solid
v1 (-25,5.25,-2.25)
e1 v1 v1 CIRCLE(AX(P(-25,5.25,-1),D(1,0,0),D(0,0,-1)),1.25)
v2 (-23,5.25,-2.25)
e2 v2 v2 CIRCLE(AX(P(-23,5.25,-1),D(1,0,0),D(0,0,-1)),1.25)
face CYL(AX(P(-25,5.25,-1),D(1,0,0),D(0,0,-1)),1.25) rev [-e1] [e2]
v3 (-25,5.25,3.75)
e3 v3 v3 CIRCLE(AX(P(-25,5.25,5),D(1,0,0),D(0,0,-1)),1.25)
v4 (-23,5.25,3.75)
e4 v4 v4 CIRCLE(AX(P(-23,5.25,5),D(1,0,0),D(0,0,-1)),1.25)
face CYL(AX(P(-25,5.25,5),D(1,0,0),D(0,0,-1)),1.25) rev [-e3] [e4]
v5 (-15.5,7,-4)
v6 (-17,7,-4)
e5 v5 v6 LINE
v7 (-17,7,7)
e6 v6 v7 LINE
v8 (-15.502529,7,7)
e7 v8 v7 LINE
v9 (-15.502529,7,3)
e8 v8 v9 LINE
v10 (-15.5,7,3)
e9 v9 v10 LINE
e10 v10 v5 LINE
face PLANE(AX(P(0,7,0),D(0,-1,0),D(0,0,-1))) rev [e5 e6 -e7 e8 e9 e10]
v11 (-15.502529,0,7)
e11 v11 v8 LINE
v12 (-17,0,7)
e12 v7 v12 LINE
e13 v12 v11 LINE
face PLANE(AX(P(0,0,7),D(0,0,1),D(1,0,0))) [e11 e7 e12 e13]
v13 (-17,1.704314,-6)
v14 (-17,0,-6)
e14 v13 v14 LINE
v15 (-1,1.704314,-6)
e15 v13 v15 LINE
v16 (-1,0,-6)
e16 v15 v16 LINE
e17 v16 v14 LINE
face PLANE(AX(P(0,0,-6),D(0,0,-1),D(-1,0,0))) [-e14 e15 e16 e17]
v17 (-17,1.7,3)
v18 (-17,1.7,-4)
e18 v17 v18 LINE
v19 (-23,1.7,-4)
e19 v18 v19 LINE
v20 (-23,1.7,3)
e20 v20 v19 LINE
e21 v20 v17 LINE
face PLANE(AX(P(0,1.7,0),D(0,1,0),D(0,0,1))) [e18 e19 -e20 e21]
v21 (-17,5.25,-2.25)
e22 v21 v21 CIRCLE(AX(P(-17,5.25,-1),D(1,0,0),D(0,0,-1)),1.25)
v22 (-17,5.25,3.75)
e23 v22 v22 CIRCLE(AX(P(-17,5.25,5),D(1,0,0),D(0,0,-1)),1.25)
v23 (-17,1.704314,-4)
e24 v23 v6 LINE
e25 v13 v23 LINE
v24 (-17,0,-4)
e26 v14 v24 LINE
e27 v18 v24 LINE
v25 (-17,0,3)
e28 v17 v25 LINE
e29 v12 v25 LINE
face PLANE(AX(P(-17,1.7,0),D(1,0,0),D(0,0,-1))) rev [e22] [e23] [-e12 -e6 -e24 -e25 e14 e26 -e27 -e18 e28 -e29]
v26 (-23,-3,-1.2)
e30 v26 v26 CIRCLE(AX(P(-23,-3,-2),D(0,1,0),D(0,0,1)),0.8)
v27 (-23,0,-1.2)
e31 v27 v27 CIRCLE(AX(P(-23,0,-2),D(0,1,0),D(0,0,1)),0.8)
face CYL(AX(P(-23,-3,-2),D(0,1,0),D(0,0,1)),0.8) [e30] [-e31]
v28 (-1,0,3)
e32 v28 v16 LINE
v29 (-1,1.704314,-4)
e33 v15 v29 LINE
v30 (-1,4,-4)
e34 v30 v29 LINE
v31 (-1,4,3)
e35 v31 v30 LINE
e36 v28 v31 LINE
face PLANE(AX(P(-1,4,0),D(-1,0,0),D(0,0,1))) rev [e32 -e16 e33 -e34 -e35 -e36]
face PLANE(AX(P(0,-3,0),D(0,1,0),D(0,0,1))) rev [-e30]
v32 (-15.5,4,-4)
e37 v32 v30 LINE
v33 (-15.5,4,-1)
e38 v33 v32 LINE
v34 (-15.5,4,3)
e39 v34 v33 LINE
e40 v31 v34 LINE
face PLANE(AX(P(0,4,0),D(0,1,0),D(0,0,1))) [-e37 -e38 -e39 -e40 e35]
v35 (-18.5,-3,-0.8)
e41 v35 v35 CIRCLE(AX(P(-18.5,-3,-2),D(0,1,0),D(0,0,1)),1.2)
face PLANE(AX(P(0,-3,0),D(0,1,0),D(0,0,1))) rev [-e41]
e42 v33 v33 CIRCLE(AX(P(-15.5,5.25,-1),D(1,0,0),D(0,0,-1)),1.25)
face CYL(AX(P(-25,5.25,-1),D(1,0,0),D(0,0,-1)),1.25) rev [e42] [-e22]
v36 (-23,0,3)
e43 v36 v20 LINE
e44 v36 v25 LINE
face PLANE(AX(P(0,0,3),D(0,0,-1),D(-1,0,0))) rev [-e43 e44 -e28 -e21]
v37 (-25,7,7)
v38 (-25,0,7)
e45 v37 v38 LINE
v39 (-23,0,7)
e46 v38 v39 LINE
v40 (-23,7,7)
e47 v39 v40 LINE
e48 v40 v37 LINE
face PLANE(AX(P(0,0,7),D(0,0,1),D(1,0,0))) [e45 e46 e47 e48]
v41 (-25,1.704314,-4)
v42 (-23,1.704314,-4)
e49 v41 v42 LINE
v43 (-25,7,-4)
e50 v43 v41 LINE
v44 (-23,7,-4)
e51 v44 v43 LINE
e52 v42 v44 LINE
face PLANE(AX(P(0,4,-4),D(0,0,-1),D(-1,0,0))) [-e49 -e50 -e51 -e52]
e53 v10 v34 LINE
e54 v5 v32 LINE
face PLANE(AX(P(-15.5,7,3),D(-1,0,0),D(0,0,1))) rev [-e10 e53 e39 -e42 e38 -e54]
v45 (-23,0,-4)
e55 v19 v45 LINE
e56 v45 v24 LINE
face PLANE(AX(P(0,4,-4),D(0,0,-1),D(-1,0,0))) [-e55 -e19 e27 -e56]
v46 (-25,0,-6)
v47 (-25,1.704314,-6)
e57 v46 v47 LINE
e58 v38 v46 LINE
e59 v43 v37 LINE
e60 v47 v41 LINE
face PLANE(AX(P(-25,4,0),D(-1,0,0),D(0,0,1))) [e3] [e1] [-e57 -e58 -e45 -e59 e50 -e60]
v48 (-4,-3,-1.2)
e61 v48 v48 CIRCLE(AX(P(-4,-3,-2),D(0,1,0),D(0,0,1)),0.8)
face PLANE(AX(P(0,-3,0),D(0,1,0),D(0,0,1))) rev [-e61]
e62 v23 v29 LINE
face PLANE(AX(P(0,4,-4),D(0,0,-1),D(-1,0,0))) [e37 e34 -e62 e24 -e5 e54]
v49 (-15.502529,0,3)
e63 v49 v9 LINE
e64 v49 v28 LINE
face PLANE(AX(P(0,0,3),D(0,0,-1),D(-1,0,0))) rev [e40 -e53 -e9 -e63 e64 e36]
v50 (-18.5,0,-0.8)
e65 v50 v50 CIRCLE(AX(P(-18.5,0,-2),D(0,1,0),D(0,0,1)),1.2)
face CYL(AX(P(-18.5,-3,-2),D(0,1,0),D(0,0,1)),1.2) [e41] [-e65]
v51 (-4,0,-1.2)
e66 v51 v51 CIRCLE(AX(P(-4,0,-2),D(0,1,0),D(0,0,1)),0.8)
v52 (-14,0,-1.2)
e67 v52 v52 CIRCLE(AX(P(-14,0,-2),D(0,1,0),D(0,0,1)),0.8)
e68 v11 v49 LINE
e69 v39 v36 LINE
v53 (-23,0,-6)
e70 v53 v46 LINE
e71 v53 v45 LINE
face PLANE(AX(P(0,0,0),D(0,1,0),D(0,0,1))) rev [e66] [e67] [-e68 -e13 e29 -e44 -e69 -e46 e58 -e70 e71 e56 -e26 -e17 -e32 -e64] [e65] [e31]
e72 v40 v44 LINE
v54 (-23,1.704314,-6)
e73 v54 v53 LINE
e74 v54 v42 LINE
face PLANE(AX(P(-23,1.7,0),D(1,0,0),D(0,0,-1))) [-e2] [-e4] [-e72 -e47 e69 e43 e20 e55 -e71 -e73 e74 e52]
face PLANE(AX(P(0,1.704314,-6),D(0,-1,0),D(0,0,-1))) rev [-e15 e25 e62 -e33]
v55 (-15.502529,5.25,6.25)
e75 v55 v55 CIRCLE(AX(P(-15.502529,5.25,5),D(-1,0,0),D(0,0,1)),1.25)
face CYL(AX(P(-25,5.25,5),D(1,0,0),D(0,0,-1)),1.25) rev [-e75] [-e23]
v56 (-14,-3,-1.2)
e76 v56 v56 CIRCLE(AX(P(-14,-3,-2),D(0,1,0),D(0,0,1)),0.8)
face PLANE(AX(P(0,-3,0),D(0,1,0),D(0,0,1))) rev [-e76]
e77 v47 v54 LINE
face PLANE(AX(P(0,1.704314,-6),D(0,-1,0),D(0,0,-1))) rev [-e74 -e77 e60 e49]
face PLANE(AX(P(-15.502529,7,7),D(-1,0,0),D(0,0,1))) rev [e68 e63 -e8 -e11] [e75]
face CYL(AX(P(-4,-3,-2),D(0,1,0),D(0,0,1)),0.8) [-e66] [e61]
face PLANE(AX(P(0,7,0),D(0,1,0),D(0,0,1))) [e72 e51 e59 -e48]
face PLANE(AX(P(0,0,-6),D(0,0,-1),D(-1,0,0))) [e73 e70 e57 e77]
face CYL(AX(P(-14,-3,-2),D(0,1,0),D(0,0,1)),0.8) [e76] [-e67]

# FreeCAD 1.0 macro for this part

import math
import FreeCAD as App
import Part
import Sketcher

V = App.Vector
Q = App.Units.Quantity

doc = App.newDocument("Part")
body = doc.addObject("PartDesign::Body", "Body")
body.AllowCompound = True

sketch1 = body.newObject("Sketcher::SketchObject", "Sketch")
sketch1.AttachmentSupport = (doc.getObject("XZ_Plane"), [""])
sketch1.MapMode = "FlatFace"
sketch1.addGeometry(Part.Circle(V(-18.5, -2, 0), V(0, 0, 1), 1.2), False)
sketch1.addGeometry(Part.ArcOfCircle(Part.Circle(V(-23, -2, 0), V(0, 0, 1), 0.8), math.radians(-90), math.radians(0)), False)
sketch1.addGeometry(Part.ArcOfCircle(Part.Circle(V(-23, -2, 0), V(0, 0, 1), 0.8), math.radians(180), math.radians(270)), False)
sketch1.addGeometry(Part.ArcOfCircle(Part.Circle(V(-23, -2, 0), V(0, 0, 1), 0.8), math.radians(90), math.radians(180)), False)
sketch1.addGeometry(Part.ArcOfCircle(Part.Circle(V(-23, -2, 0), V(0, 0, 1), 0.8), math.radians(0), math.radians(90)), False)
sketch1.addGeometry(Part.Circle(V(-14, -2, 0), V(0, 0, 1), 0.8), False)
sketch1.addGeometry(Part.Circle(V(-4, -2, 0), V(0, 0, 1), 0.8), False)
sketch1.addConstraint(Sketcher.Constraint("Tangent", 1, 1, 2, 2))
sketch1.addConstraint(Sketcher.Constraint("Tangent", 2, 1, 3, 2))
sketch1.addConstraint(Sketcher.Constraint("Tangent", 3, 1, 4, 2))
sketch1.addConstraint(Sketcher.Constraint("Tangent", 4, 1, 1, 2))
sketch1.addConstraint(Sketcher.Constraint("Equal", 1, 2))
sketch1.addConstraint(Sketcher.Constraint("Equal", 4, 5))
sketch1.addConstraint(Sketcher.Constraint("Equal", 5, 6))
sketch1.addConstraint(Sketcher.Constraint("Horizontal", 0, 3, 1, 3))
sketch1.addConstraint(Sketcher.Constraint("Horizontal", 4, 3, 5, 3))
sketch1.addConstraint(Sketcher.Constraint("Horizontal", 5, 3, 6, 3))
sketch1.addConstraint(Sketcher.Constraint("Horizontal", 6, 3, 2, 1))
sketch1.addConstraint(Sketcher.Constraint("Horizontal", 2, 1, 4, 1))
sketch1.addConstraint(Sketcher.Constraint("Vertical", 4, 3, 1, 1))
sketch1.addConstraint(Sketcher.Constraint("Vertical", 1, 1, 3, 1))
sketch1.addConstraint(Sketcher.Constraint("Diameter", 0, Q("2.4 mm")))
sketch1.addConstraint(Sketcher.Constraint("Diameter", 5, Q("1.6 mm")))
sketch1.addConstraint(Sketcher.Constraint("DistanceY", 0, 3, -1, 1, Q("2 mm")))
sketch1.addConstraint(Sketcher.Constraint("DistanceX", 1, 3, -1, 1, Q("23 mm")))
sketch1.addConstraint(Sketcher.Constraint("DistanceX", 5, 3, -1, 1, Q("14 mm")))
sketch1.addConstraint(Sketcher.Constraint("DistanceX", 6, 3, -1, 1, Q("4 mm")))
sketch1.addConstraint(Sketcher.Constraint("DistanceX", 0, 3, -1, 1, Q("18.5 mm")))
pad1 = body.newObject("PartDesign::Pad", "Pad")
pad1.Profile = sketch1
pad1.Length = 3

sketch2 = body.newObject("Sketcher::SketchObject", "Sketch001")
sketch2.AttachmentSupport = (doc.getObject("XZ_Plane"), [""])
sketch2.MapMode = "FlatFace"
sketch2.addGeometry(Part.LineSegment(V(-25, -4, 0), V(-25, 0, 0)), False)
sketch2.addGeometry(Part.LineSegment(V(-25, 0, 0), V(-1, 0, 0)), False)
sketch2.addGeometry(Part.LineSegment(V(-1, 0, 0), V(-1, -4, 0)), False)
sketch2.addGeometry(Part.LineSegment(V(-1, -4, 0), V(-25, -4, 0)), False)
sketch2.addConstraint(Sketcher.Constraint("Coincident", 0, 2, 1, 1))
sketch2.addConstraint(Sketcher.Constraint("Coincident", 1, 2, 2, 1))
sketch2.addConstraint(Sketcher.Constraint("Coincident", 2, 2, 3, 1))
sketch2.addConstraint(Sketcher.Constraint("Coincident", 3, 2, 0, 1))
sketch2.addConstraint(Sketcher.Constraint("Vertical", 0))
sketch2.addConstraint(Sketcher.Constraint("Horizontal", 1))
sketch2.addConstraint(Sketcher.Constraint("Vertical", 2))
sketch2.addConstraint(Sketcher.Constraint("Horizontal", 3))
sketch2.addConstraint(Sketcher.Constraint("PointOnObject", 0, 2, -1))
sketch2.addConstraint(Sketcher.Constraint("DistanceX", 1, 1, 1, 2, Q("24 mm")))
sketch2.addConstraint(Sketcher.Constraint("DistanceY", 0, 1, 0, 2, Q("4 mm")))
sketch2.addConstraint(Sketcher.Constraint("DistanceX", 0, 2, -1, 1, Q("25 mm")))
pad2 = body.newObject("PartDesign::Pad", "Pad001")
pad2.Profile = sketch2
pad2.Length = 4
pad2.Reversed = True

sketch3 = body.newObject("Sketcher::SketchObject", "Sketch002")
sketch3.AttachmentSupport = (doc.getObject("XY_Plane"), [""])
sketch3.MapMode = "FlatFace"
sketch3.addGeometry(Part.LineSegment(V(-25, 4, 0), V(-25, 0, 0)), False)
sketch3.addGeometry(Part.LineSegment(V(-25, 0, 0), V(-1, 0, 0)), False)
sketch3.addGeometry(Part.LineSegment(V(-1, 0, 0), V(-1, 4, 0)), False)
sketch3.addGeometry(Part.LineSegment(V(-1, 4, 0), V(-25, 4, 0)), False)
sketch3.addConstraint(Sketcher.Constraint("Coincident", 0, 2, 1, 1))
sketch3.addConstraint(Sketcher.Constraint("Coincident", 1, 2, 2, 1))
sketch3.addConstraint(Sketcher.Constraint("Coincident", 2, 2, 3, 1))
sketch3.addConstraint(Sketcher.Constraint("Coincident", 3, 2, 0, 1))
sketch3.addConstraint(Sketcher.Constraint("Vertical", 0))
sketch3.addConstraint(Sketcher.Constraint("Horizontal", 1))
sketch3.addConstraint(Sketcher.Constraint("Vertical", 2))
sketch3.addConstraint(Sketcher.Constraint("Horizontal", 3))
sketch3.addConstraint(Sketcher.Constraint("PointOnObject", 0, 2, -1))
sketch3.addConstraint(Sketcher.Constraint("DistanceX", 1, 1, 1, 2, Q("24 mm")))
sketch3.addConstraint(Sketcher.Constraint("DistanceY", 0, 2, 0, 1, Q("4 mm")))
sketch3.addConstraint(Sketcher.Constraint("DistanceX", 0, 2, -1, 1, Q("25 mm")))
pad3 = body.newObject("PartDesign::Pad", "Pad002")
pad3.Profile = sketch3
pad3.Length = 3

sketch4 = body.newObject("Sketcher::SketchObject", "Sketch003")
sketch4.AttachmentSupport = (doc.getObject("XZ_Plane"), [""])
sketch4.MapMode = "FlatFace"
sketch4.AttachmentOffset = App.Placement(V(0, 0, -4), App.Rotation())
sketch4.addGeometry(Part.LineSegment(V(-23, 3, 0), V(-17, 3, 0)), False)
sketch4.addGeometry(Part.LineSegment(V(-17, 3, 0), V(-17, -4, 0)), False)
sketch4.addGeometry(Part.LineSegment(V(-17, -4, 0), V(-23, -4, 0)), False)
sketch4.addGeometry(Part.LineSegment(V(-23, -4, 0), V(-23, 3, 0)), False)
sketch4.addConstraint(Sketcher.Constraint("Coincident", 0, 2, 1, 1))
sketch4.addConstraint(Sketcher.Constraint("Coincident", 1, 2, 2, 1))
sketch4.addConstraint(Sketcher.Constraint("Coincident", 2, 2, 3, 1))
sketch4.addConstraint(Sketcher.Constraint("Coincident", 3, 2, 0, 1))
sketch4.addConstraint(Sketcher.Constraint("Horizontal", 0))
sketch4.addConstraint(Sketcher.Constraint("Vertical", 1))
sketch4.addConstraint(Sketcher.Constraint("Horizontal", 2))
sketch4.addConstraint(Sketcher.Constraint("Vertical", 3))
sketch4.addConstraint(Sketcher.Constraint("DistanceX", 0, 1, 0, 2, Q("6 mm")))
sketch4.addConstraint(Sketcher.Constraint("DistanceY", 1, 2, 1, 1, Q("7 mm")))
sketch4.addConstraint(Sketcher.Constraint("DistanceX", 0, 2, -1, 1, Q("17 mm")))
sketch4.addConstraint(Sketcher.Constraint("DistanceY", -1, 1, 0, 2, Q("3 mm")))
pocket1 = body.newObject("PartDesign::Pocket", "Pocket")
pocket1.Profile = sketch4
pocket1.Length = 2.3
pocket1.Reversed = True

sketch5 = body.newObject("Sketcher::SketchObject", "Sketch004")
sketch5.AttachmentSupport = (doc.getObject("XZ_Plane"), [""])
sketch5.MapMode = "FlatFace"
sketch5.AttachmentOffset = App.Placement(V(0, 0, -4), App.Rotation())
sketch5.addGeometry(Part.LineSegment(V(-25, -4, 0), V(-25, 3, 0)), False)
sketch5.addGeometry(Part.LineSegment(V(-25, 3, 0), V(-23, 3, 0)), False)
sketch5.addGeometry(Part.LineSegment(V(-23, 3, 0), V(-23, -4, 0)), False)
sketch5.addGeometry(Part.LineSegment(V(-23, -4, 0), V(-25, -4, 0)), False)
sketch5.addGeometry(Part.LineSegment(V(-17, -4, 0), V(-17, 3, 0)), False)
sketch5.addGeometry(Part.LineSegment(V(-17, 3, 0), V(-15.5, 3, 0)), False)
sketch5.addGeometry(Part.LineSegment(V(-15.5, 3, 0), V(-15.5, -4, 0)), False)
sketch5.addGeometry(Part.LineSegment(V(-15.5, -4, 0), V(-17, -4, 0)), False)
sketch5.addConstraint(Sketcher.Constraint("Coincident", 0, 2, 1, 1))
sketch5.addConstraint(Sketcher.Constraint("Coincident", 1, 2, 2, 1))
sketch5.addConstraint(Sketcher.Constraint("Coincident", 2, 2, 3, 1))
sketch5.addConstraint(Sketcher.Constraint("Coincident", 3, 2, 0, 1))
sketch5.addConstraint(Sketcher.Constraint("Coincident", 4, 2, 5, 1))
sketch5.addConstraint(Sketcher.Constraint("Coincident", 5, 2, 6, 1))
sketch5.addConstraint(Sketcher.Constraint("Coincident", 6, 2, 7, 1))
sketch5.addConstraint(Sketcher.Constraint("Coincident", 7, 2, 4, 1))
sketch5.addConstraint(Sketcher.Constraint("Vertical", 0))
sketch5.addConstraint(Sketcher.Constraint("Horizontal", 1))
sketch5.addConstraint(Sketcher.Constraint("Vertical", 2))
sketch5.addConstraint(Sketcher.Constraint("Horizontal", 3))
sketch5.addConstraint(Sketcher.Constraint("Vertical", 4))
sketch5.addConstraint(Sketcher.Constraint("Horizontal", 5))
sketch5.addConstraint(Sketcher.Constraint("Vertical", 6))
sketch5.addConstraint(Sketcher.Constraint("Horizontal", 7))
sketch5.addConstraint(Sketcher.Constraint("Horizontal", 1, 2, 4, 2))
sketch5.addConstraint(Sketcher.Constraint("Horizontal", 3, 2, 6, 2))
sketch5.addConstraint(Sketcher.Constraint("DistanceX", 1, 1, 1, 2, Q("2 mm")))
sketch5.addConstraint(Sketcher.Constraint("DistanceY", 0, 1, 0, 2, Q("7 mm")))
sketch5.addConstraint(Sketcher.Constraint("DistanceX", 5, 1, 5, 2, Q("1.5 mm")))
sketch5.addConstraint(Sketcher.Constraint("DistanceX", 0, 2, -1, 1, Q("25 mm")))
sketch5.addConstraint(Sketcher.Constraint("DistanceY", -1, 1, 0, 2, Q("3 mm")))
sketch5.addConstraint(Sketcher.Constraint("DistanceX", 4, 2, -1, 1, Q("17 mm")))
pad4 = body.newObject("PartDesign::Pad", "Pad003")
pad4.Profile = sketch5
pad4.Length = 3
pad4.Reversed = True

sketch6 = body.newObject("Sketcher::SketchObject", "Sketch005")
sketch6.AttachmentSupport = (doc.getObject("XY_Plane"), [""])
sketch6.MapMode = "FlatFace"
sketch6.AttachmentOffset = App.Placement(V(0, 0, 3), App.Rotation())
sketch6.addGeometry(Part.LineSegment(V(-25, 7, 0), V(-25, 0, 0)), False)
sketch6.addGeometry(Part.LineSegment(V(-25, 0, 0), V(-23, 0, 0)), False)
sketch6.addGeometry(Part.LineSegment(V(-23, 0, 0), V(-23, 7, 0)), False)
sketch6.addGeometry(Part.LineSegment(V(-23, 7, 0), V(-25, 7, 0)), False)
sketch6.addGeometry(Part.LineSegment(V(-17, 7, 0), V(-17, 0, 0)), False)
sketch6.addGeometry(Part.LineSegment(V(-17, 0, 0), V(-15.5, 0, 0)), False)
sketch6.addGeometry(Part.LineSegment(V(-15.5, 0, 0), V(-15.5, 7, 0)), False)
sketch6.addGeometry(Part.LineSegment(V(-15.5, 7, 0), V(-17, 7, 0)), False)
sketch6.addConstraint(Sketcher.Constraint("Coincident", 0, 2, 1, 1))
sketch6.addConstraint(Sketcher.Constraint("Coincident", 1, 2, 2, 1))
sketch6.addConstraint(Sketcher.Constraint("Coincident", 2, 2, 3, 1))
sketch6.addConstraint(Sketcher.Constraint("Coincident", 3, 2, 0, 1))
sketch6.addConstraint(Sketcher.Constraint("Coincident", 4, 2, 5, 1))
sketch6.addConstraint(Sketcher.Constraint("Coincident", 5, 2, 6, 1))
sketch6.addConstraint(Sketcher.Constraint("Coincident", 6, 2, 7, 1))
sketch6.addConstraint(Sketcher.Constraint("Coincident", 7, 2, 4, 1))
sketch6.addConstraint(Sketcher.Constraint("Vertical", 0))
sketch6.addConstraint(Sketcher.Constraint("Horizontal", 1))
sketch6.addConstraint(Sketcher.Constraint("Vertical", 2))
sketch6.addConstraint(Sketcher.Constraint("Horizontal", 3))
sketch6.addConstraint(Sketcher.Constraint("Vertical", 4))
sketch6.addConstraint(Sketcher.Constraint("Horizontal", 5))
sketch6.addConstraint(Sketcher.Constraint("Vertical", 6))
sketch6.addConstraint(Sketcher.Constraint("Horizontal", 7))
sketch6.addConstraint(Sketcher.Constraint("PointOnObject", 0, 2, -1))
sketch6.addConstraint(Sketcher.Constraint("PointOnObject", 4, 2, -1))
sketch6.addConstraint(Sketcher.Constraint("Horizontal", 3, 2, 6, 2))
sketch6.addConstraint(Sketcher.Constraint("DistanceX", 1, 1, 1, 2, Q("2 mm")))
sketch6.addConstraint(Sketcher.Constraint("DistanceY", 0, 2, 0, 1, Q("7 mm")))
sketch6.addConstraint(Sketcher.Constraint("DistanceX", 0, 2, -1, 1, Q("25 mm")))
sketch6.addConstraint(Sketcher.Constraint("DistanceX", 4, 2, -1, 1, Q("17 mm")))
sketch6.addConstraint(Sketcher.Constraint("DistanceX", 5, 1, 5, 2, Q("1.497471 mm")))
pad5 = body.newObject("PartDesign::Pad", "Pad004")
pad5.Profile = sketch6
pad5.Length = 4

sketch7 = body.newObject("Sketcher::SketchObject", "Sketch006")
sketch7.AttachmentSupport = (doc.getObject("YZ_Plane"), [""])
sketch7.MapMode = "FlatFace"
sketch7.AttachmentOffset = App.Placement(V(0, 0, -15.5), App.Rotation())
sketch7.addGeometry(Part.Circle(V(5.2, -1, 0), V(0, 0, 1), 1.2), False)
sketch7.addGeometry(Part.Circle(V(5.2, 5, 0), V(0, 0, 1), 1.2), False)
sketch7.addConstraint(Sketcher.Constraint("Equal", 0, 1))
sketch7.addConstraint(Sketcher.Constraint("Vertical", 0, 3, 1, 3))
sketch7.addConstraint(Sketcher.Constraint("Diameter", 0, Q("2.5 mm")))
sketch7.addConstraint(Sketcher.Constraint("DistanceY", 0, 3, -1, 1, Q("1 mm")))
sketch7.addConstraint(Sketcher.Constraint("DistanceY", -1, 1, 1, 3, Q("5 mm")))
sketch7.addConstraint(Sketcher.Constraint("DistanceX", -1, 1, 0, 3, Q("5.25 mm")))
pocket2 = body.newObject("PartDesign::Pocket", "Pocket001")
pocket2.Profile = sketch7
pocket2.Type = "ThroughAll"

sketch8 = body.newObject("Sketcher::SketchObject", "Sketch007")
sketch8.AttachmentSupport = (doc.getObject("XY_Plane"), [""])
sketch8.MapMode = "FlatFace"
sketch8.AttachmentOffset = App.Placement(V(0, 0, -4), App.Rotation())
sketch8.addGeometry(Part.LineSegment(V(-1, 0, 0), V(-17, 0, 0)), False)
sketch8.addGeometry(Part.LineSegment(V(-17, 0, 0), V(-17, 1.7, 0)), False)
sketch8.addGeometry(Part.LineSegment(V(-17, 1.7, 0), V(-1, 1.7, 0)), False)
sketch8.addGeometry(Part.LineSegment(V(-1, 1.7, 0), V(-1, 0, 0)), False)
sketch8.addGeometry(Part.LineSegment(V(-23, 0, 0), V(-25, 0, 0)), False)
sketch8.addGeometry(Part.LineSegment(V(-25, 0, 0), V(-25, 1.7, 0)), False)
sketch8.addGeometry(Part.LineSegment(V(-25, 1.7, 0), V(-23, 1.7, 0)), False)
sketch8.addGeometry(Part.LineSegment(V(-23, 1.7, 0), V(-23, 0, 0)), False)
sketch8.addConstraint(Sketcher.Constraint("Coincident", 0, 2, 1, 1))
sketch8.addConstraint(Sketcher.Constraint("Coincident", 1, 2, 2, 1))
sketch8.addConstraint(Sketcher.Constraint("Coincident", 2, 2, 3, 1))
sketch8.addConstraint(Sketcher.Constraint("Coincident", 3, 2, 0, 1))
sketch8.addConstraint(Sketcher.Constraint("Coincident", 4, 2, 5, 1))
sketch8.addConstraint(Sketcher.Constraint("Coincident", 5, 2, 6, 1))
sketch8.addConstraint(Sketcher.Constraint("Coincident", 6, 2, 7, 1))
sketch8.addConstraint(Sketcher.Constraint("Coincident", 7, 2, 4, 1))
sketch8.addConstraint(Sketcher.Constraint("Horizontal", 0))
sketch8.addConstraint(Sketcher.Constraint("Vertical", 1))
sketch8.addConstraint(Sketcher.Constraint("Horizontal", 2))
sketch8.addConstraint(Sketcher.Constraint("Vertical", 3))
sketch8.addConstraint(Sketcher.Constraint("Horizontal", 4))
sketch8.addConstraint(Sketcher.Constraint("Vertical", 5))
sketch8.addConstraint(Sketcher.Constraint("Horizontal", 6))
sketch8.addConstraint(Sketcher.Constraint("Vertical", 7))
sketch8.addConstraint(Sketcher.Constraint("PointOnObject", 0, 2, -1))
sketch8.addConstraint(Sketcher.Constraint("PointOnObject", 4, 2, -1))
sketch8.addConstraint(Sketcher.Constraint("Horizontal", 2, 2, 5, 2))
sketch8.addConstraint(Sketcher.Constraint("DistanceX", 0, 2, 0, 1, Q("16 mm")))
sketch8.addConstraint(Sketcher.Constraint("DistanceX", 4, 2, 4, 1, Q("2 mm")))
sketch8.addConstraint(Sketcher.Constraint("DistanceX", 0, 2, -1, 1, Q("17 mm")))
sketch8.addConstraint(Sketcher.Constraint("DistanceX", 4, 2, -1, 1, Q("25 mm")))
sketch8.addConstraint(Sketcher.Constraint("DistanceY", 1, 1, 1, 2, Q("1.704314 mm")))
pad6 = body.newObject("PartDesign::Pad", "Pad005")
pad6.Profile = sketch8
pad6.Length = 2
pad6.Reversed = True

doc.recompute()
